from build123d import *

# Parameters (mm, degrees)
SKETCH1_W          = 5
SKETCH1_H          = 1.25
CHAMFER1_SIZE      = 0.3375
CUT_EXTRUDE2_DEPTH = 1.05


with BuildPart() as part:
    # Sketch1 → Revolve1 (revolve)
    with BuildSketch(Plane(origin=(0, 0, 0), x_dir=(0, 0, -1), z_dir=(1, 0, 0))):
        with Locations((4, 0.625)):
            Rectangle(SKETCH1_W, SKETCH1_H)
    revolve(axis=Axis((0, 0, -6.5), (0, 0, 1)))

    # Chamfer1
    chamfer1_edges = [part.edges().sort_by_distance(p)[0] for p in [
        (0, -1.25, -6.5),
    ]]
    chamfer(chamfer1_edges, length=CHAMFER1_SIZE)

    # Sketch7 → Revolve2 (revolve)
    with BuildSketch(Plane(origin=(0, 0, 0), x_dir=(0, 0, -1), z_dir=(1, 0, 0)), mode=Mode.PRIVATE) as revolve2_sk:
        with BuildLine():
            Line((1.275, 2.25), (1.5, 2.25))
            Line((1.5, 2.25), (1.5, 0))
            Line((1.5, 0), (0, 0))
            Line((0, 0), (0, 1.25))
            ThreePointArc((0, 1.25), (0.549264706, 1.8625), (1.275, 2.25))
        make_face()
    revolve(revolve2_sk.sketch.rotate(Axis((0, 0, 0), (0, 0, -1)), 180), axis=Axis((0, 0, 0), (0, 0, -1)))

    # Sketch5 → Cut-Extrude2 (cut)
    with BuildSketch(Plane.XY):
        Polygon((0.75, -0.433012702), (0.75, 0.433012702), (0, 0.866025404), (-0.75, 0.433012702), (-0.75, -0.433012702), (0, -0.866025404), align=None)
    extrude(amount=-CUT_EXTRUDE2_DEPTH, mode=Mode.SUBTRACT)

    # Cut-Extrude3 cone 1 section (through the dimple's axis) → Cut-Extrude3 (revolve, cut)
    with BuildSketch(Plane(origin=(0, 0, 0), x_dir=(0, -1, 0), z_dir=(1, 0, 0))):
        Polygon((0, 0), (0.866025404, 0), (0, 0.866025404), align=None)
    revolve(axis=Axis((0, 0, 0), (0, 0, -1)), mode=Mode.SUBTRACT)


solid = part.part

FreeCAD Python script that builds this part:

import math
import FreeCAD as App
import Part
import Sketcher
Q = App.Units.Quantity


def edges_at(feature, points):
    """Names of the edges that pass closest to the given points."""
    edges = feature.Shape.Edges
    near = lambda p: min(range(len(edges)), key=lambda i: edges[i].distToShape(Part.Vertex(*p))[0])
    return sorted({f"Edge{near(p) + 1}" for p in points})


def add_polygon(sketch, points):
    """Adds a closed chain of lines whose ends are joined by coincident constraints."""
    first, n = sketch.GeometryCount, len(points)
    for a, b in zip(points, points[1:] + points[:1]):
        sketch.addGeometry(Part.LineSegment(App.Vector(*a, 0), App.Vector(*b, 0)), False)
    for i in range(n):
        sketch.addConstraint(Sketcher.Constraint("Coincident", first + i, 2, first + (i + 1) % n, 1))

doc = App.newDocument("Part")
body = doc.addObject("PartDesign::Body", "Body")

sketch1 = body.newObject("Sketcher::SketchObject", "Sketch")
sketch1.AttachmentSupport = (doc.getObject("YZ_Plane"), [""])
sketch1.MapMode = "FlatFace"
add_polygon(sketch1, [(1.2, -1.5), (0, -1.5), (0, -6.5), (1.2, -6.5)])
sketch1.addConstraint([
    Sketcher.Constraint("Horizontal", 0),
    Sketcher.Constraint("Vertical", 1),
    Sketcher.Constraint("Horizontal", 2),
    Sketcher.Constraint("Vertical", 3),
    Sketcher.Constraint("PointOnObject", 0, 2, -2),
    Sketcher.Constraint("DistanceY", 1, 2, 1, 1, Q("5 mm")),
    Sketcher.Constraint("DistanceX", 0, 2, 0, 1, Q("1.25 mm")),
    Sketcher.Constraint("DistanceY", 0, 2, -1, 1, Q("1.5 mm")),
])
revolution = body.newObject("PartDesign::Revolution", "Revolution")
revolution.Profile = sketch1
revolution.ReferenceAxis = (sketch1, ["V_Axis"])
revolution.Angle = 360
doc.recompute()

chamfer = body.newObject("PartDesign::Chamfer", "Chamfer")
chamfer.Base = (revolution, edges_at(revolution, [(0, -1.25, -6.5)]))
chamfer.Size = 0.3375

sketch2 = body.newObject("Sketcher::SketchObject", "Sketch001")
sketch2.AttachmentSupport = (doc.getObject("YZ_Plane"), [""])
sketch2.MapMode = "FlatFace"
sketch2.addGeometry([
    Part.LineSegment(App.Vector(2.25, -1.5, 0), App.Vector(2.25, -1.27, 0)),
    Part.ArcOfCircle(Part.Circle(App.Vector(0, -2.01, 0), App.Vector(0, 0, 1), 2.37), math.radians(18), math.radians(58)),
    Part.LineSegment(App.Vector(1.25, 0, 0), App.Vector(0, 0, 0)),
    Part.LineSegment(App.Vector(0, 0, 0), App.Vector(0, -1.5, 0)),
    Part.LineSegment(App.Vector(0, -1.5, 0), App.Vector(2.25, -1.5, 0)),
], False)
sketch2.addConstraint([
    Sketcher.Constraint("Coincident", 0, 2, 1, 1),
    Sketcher.Constraint("Coincident", 1, 2, 2, 1),
    Sketcher.Constraint("Coincident", 2, 2, 3, 1),
    Sketcher.Constraint("Coincident", 3, 2, 4, 1),
    Sketcher.Constraint("Coincident", 4, 2, 0, 1),
    Sketcher.Constraint("Vertical", 0),
    Sketcher.Constraint("Horizontal", 2),
    Sketcher.Constraint("Vertical", 3),
    Sketcher.Constraint("Horizontal", 4),
    Sketcher.Constraint("Coincident", 2, 2, -1, 1),
    Sketcher.Constraint("PointOnObject", 1, 3, -2),
    Sketcher.Constraint("DistanceY", 3, 2, 3, 1, Q("1.5 mm")),
    Sketcher.Constraint("DistanceX", 1, 2, 0, 2, Q("1 mm")),
    Sketcher.Constraint("DistanceX", 2, 2, 2, 1, Q("1.25 mm")),
    Sketcher.Constraint("DistanceY", 0, 1, 0, 2, Q("0.225 mm")),
])
revolution2 = body.newObject("PartDesign::Revolution", "Revolution001")
revolution2.Profile = sketch2
revolution2.ReferenceAxis = (sketch2, ["V_Axis"])
revolution2.Angle = 360

sketch3 = body.newObject("Sketcher::SketchObject", "Sketch002")
sketch3.AttachmentSupport = (doc.getObject("XY_Plane"), [""])
sketch3.MapMode = "FlatFace"
add_polygon(sketch3, [(0.8, -0.4), (0.8, 0.4), (0, 0.9), (-0.8, 0.4), (-0.8, -0.4), (0, -0.9)])
sketch3.addConstraint([
    Sketcher.Constraint("Vertical", 0),
    Sketcher.Constraint("Vertical", 3),
    Sketcher.Constraint("Symmetric", 0, 2, 3, 2, -1, 1),
    Sketcher.Constraint("Symmetric", 1, 2, 4, 2, -1, 1),
    Sketcher.Constraint("PointOnObject", 1, 2, -2),
    Sketcher.Constraint("Parallel", 2, 5),
    Sketcher.Constraint("Horizontal", 0, 2, 2, 2),
    Sketcher.Constraint("Angle", 1, Q("150 deg")),
    Sketcher.Constraint("DistanceX", 2, 2, 0, 2, Q("1.5 mm")),
    Sketcher.Constraint("DistanceY", 0, 1, 0, 2, Q("0.866025 mm")),
])
pocket1 = body.newObject("PartDesign::Pocket", "Pocket")
pocket1.Profile = sketch3
pocket1.Length = 1.05

sketch4 = body.newObject("Sketcher::SketchObject", "Sketch003")
sketch4.AttachmentSupport = (doc.getObject("YZ_Plane"), [""])
sketch4.MapMode = "FlatFace"
add_polygon(sketch4, [(0, 0), (-0.9, 0), (0, -0.9)])
sketch4.addConstraint([
    Sketcher.Constraint("Horizontal", 0),
    Sketcher.Constraint("Vertical", 2),
    Sketcher.Constraint("Coincident", 2, 2, -1, 1),
    Sketcher.Constraint("Equal", 0, 2),
    Sketcher.Constraint("DistanceX", 0, 2, 0, 1, Q("0.866025 mm")),
])
groove = body.newObject("PartDesign::Groove", "Groove")
groove.Profile = sketch4
groove.ReferenceAxis = (sketch4, ["V_Axis"])
groove.Angle = 360

doc.recompute()
